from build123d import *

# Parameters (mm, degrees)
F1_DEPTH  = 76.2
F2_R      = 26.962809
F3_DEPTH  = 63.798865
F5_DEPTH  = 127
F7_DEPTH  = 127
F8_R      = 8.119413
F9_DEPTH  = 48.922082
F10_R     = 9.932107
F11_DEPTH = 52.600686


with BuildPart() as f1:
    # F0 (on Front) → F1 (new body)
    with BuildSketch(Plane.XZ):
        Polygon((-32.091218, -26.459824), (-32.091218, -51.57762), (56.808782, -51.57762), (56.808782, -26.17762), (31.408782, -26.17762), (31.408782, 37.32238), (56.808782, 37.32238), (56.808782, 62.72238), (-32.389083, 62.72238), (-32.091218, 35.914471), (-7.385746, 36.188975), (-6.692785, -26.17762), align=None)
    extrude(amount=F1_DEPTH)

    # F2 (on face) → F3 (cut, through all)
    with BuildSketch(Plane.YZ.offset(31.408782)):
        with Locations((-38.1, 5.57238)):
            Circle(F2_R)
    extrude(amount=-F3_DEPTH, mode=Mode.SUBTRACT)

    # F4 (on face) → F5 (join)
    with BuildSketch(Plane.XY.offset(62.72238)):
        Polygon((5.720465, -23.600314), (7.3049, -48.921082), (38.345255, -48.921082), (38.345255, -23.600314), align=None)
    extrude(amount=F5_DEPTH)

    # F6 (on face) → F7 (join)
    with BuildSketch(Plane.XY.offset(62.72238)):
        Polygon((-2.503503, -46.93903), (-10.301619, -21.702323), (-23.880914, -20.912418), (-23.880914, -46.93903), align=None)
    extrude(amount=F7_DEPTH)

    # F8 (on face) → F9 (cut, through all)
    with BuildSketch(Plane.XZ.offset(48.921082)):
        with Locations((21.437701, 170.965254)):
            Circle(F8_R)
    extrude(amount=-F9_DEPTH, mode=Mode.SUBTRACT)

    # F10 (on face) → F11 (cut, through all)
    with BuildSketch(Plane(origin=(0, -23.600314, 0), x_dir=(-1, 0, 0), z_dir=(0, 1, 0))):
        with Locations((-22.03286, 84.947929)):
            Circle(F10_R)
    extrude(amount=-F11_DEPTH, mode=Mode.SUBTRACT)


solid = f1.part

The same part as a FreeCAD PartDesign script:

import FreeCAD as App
import Part
import Sketcher

V = App.Vector
Q = App.Units.Quantity

doc = App.newDocument("Part")
body = doc.addObject("PartDesign::Body", "Body")

# Sketch on XZ plane
sketch1 = doc.addObject("Sketcher::SketchObject", "Sketch")
body.addObject(sketch1)
sketch1.AttachmentSupport = (doc.XZ_Plane, [""])
sketch1.MapMode = "FlatFace"
sketch1.addGeometry([
    Part.LineSegment(V(-32.091218, -26.459824, 0), V(-32.091218, -51.57762, 0)),  # 0
    Part.LineSegment(V(-32.091218, -51.57762, 0), V(56.808782, -51.57762, 0)),  # 1
    Part.LineSegment(V(56.808782, -51.57762, 0), V(56.808782, -26.17762, 0)),  # 2
    Part.LineSegment(V(56.808782, -26.17762, 0), V(31.408782, -26.17762, 0)),  # 3
    Part.LineSegment(V(31.408782, -26.17762, 0), V(31.408782, 37.32238, 0)),  # 4
    Part.LineSegment(V(31.408782, 37.32238, 0), V(56.808782, 37.32238, 0)),  # 5
    Part.LineSegment(V(56.808782, 37.32238, 0), V(56.808782, 62.72238, 0)),  # 6
    Part.LineSegment(V(56.808782, 62.72238, 0), V(-32.389083, 62.72238, 0)),  # 7
    Part.LineSegment(V(-32.389083, 62.72238, 0), V(-32.091218, 35.914471, 0)),  # 8
    Part.LineSegment(V(-32.091218, 35.914471, 0), V(-7.385746, 36.188975, 0)),  # 9
    Part.LineSegment(V(-7.385746, 36.188975, 0), V(-6.692785, -26.17762, 0)),  # 10
    Part.LineSegment(V(-6.692785, -26.17762, 0), V(-32.091218, -26.459824, 0)),  # 11
], False)
sketch1.addConstraint([
    Sketcher.Constraint("Coincident", 0, 2, 1, 1),
    Sketcher.Constraint("Coincident", 1, 2, 2, 1),
    Sketcher.Constraint("Coincident", 2, 2, 3, 1),
    Sketcher.Constraint("Coincident", 3, 2, 4, 1),
    Sketcher.Constraint("Coincident", 4, 2, 5, 1),
    Sketcher.Constraint("Coincident", 5, 2, 6, 1),
    Sketcher.Constraint("Coincident", 6, 2, 7, 1),
    Sketcher.Constraint("Coincident", 7, 2, 8, 1),
    Sketcher.Constraint("Coincident", 8, 2, 9, 1),
    Sketcher.Constraint("Coincident", 9, 2, 10, 1),
    Sketcher.Constraint("Coincident", 10, 2, 11, 1),
    Sketcher.Constraint("Coincident", 11, 2, 0, 1),
    Sketcher.Constraint("Vertical", 0),
    Sketcher.Constraint("Horizontal", 1),
    Sketcher.Constraint("Vertical", 2),
    Sketcher.Constraint("Horizontal", 3),
    Sketcher.Constraint("Vertical", 4),
    Sketcher.Constraint("Horizontal", 5),
    Sketcher.Constraint("Vertical", 6),
    Sketcher.Constraint("Horizontal", 7),
    Sketcher.Constraint("Perpendicular", 8, 9),
    Sketcher.Constraint("Perpendicular", 9, 10),
    Sketcher.Constraint("Perpendicular", 10, 11),
    Sketcher.Constraint("Horizontal", 3, 2, 10, 2),
    Sketcher.Constraint("Vertical", 2, 2, 5, 2),
    Sketcher.Constraint("Vertical", 0, 2, 8, 2),
    Sketcher.Constraint("Equal", 5, 2),
    Sketcher.Constraint("Equal", 2, 6),
    Sketcher.Constraint("DistanceX", 3, 2, 3, 1, Q("1 in")),
    Sketcher.Constraint("Distance", 11, Q("1 in")),
    Sketcher.Constraint("DistanceX", 1, 1, 1, 2, Q("3.5 in")),
    Sketcher.Constraint("DistanceY", 4, 1, 4, 2, Q("2.5 in")),
    Sketcher.Constraint("DistanceY", 11, 2, 9, 2, Q("62.648799 mm")),
    Sketcher.Constraint("DistanceX", 7, 2, 7, 1, Q("89.197865 mm")),
    Sketcher.Constraint("DistanceY", 0, 2, -1, 1, Q("51.57762 mm")),
    Sketcher.Constraint("DistanceX", -1, 1, 3, 2, Q("31.408782 mm")),
])
pad1 = doc.addObject("PartDesign::Pad", "Pad")
body.addObject(pad1)
pad1.Profile = sketch1
pad1.Length = Q("3 in")

# Sketch on YZ plane
sketch2 = doc.addObject("Sketcher::SketchObject", "Sketch001")
body.addObject(sketch2)
sketch2.AttachmentSupport = (doc.YZ_Plane, [""])
sketch2.MapMode = "FlatFace"
sketch2.AttachmentOffset = App.Placement(V(0, 0, 31.408782), App.Rotation())
sketch2.addGeometry(Part.Circle(V(-38.1, 5.57238, 0), V(0, 0, 1), 26.962809), False)
sketch2.addConstraint([
    Sketcher.Constraint("DistanceX", 0, 3, -1, 1, Q("1.5 in")),
    Sketcher.Constraint("Diameter", 0, Q("53.925618 mm")),
    Sketcher.Constraint("DistanceY", -1, 1, 0, 3, Q("5.57238 mm")),
])
pocket1 = doc.addObject("PartDesign::Pocket", "Pocket")
body.addObject(pocket1)
pocket1.Profile = sketch2
pocket1.Type = "ThroughAll"

# Sketch on XY plane
sketch3 = doc.addObject("Sketcher::SketchObject", "Sketch002")
body.addObject(sketch3)
sketch3.AttachmentSupport = (doc.XY_Plane, [""])
sketch3.MapMode = "FlatFace"
sketch3.AttachmentOffset = App.Placement(V(0, 0, 62.72238), App.Rotation())
sketch3.addGeometry([
    Part.LineSegment(V(5.720465, -23.600314, 0), V(7.3049, -48.921082, 0)),
    Part.LineSegment(V(7.3049, -48.921082, 0), V(38.345255, -48.921082, 0)),
    Part.LineSegment(V(38.345255, -48.921082, 0), V(38.345255, -23.600314, 0)),
    Part.LineSegment(V(38.345255, -23.600314, 0), V(5.720465, -23.600314, 0)),
], False)
sketch3.addConstraint([
    Sketcher.Constraint("Coincident", 0, 2, 1, 1),
    Sketcher.Constraint("Coincident", 1, 2, 2, 1),
    Sketcher.Constraint("Coincident", 2, 2, 3, 1),
    Sketcher.Constraint("Coincident", 3, 2, 0, 1),
    Sketcher.Constraint("Horizontal", 1),
    Sketcher.Constraint("Vertical", 2),
    Sketcher.Constraint("Horizontal", 3),
    Sketcher.Constraint("DistanceX", 3, 2, 3, 1, Q("32.62479 mm")),
    Sketcher.Constraint("DistanceX", -1, 1, 0, 2, Q("7.3049 mm")),
    Sketcher.Constraint("DistanceX", 1, 1, 1, 2, Q("31.040355 mm")),
    Sketcher.Constraint("DistanceY", 2, 1, 2, 2, Q("25.320768 mm")),
    Sketcher.Constraint("DistanceY", 0, 2, -1, 1, Q("48.921082 mm")),
])
pad2 = doc.addObject("PartDesign::Pad", "Pad001")
body.addObject(pad2)
pad2.Profile = sketch3
pad2.Length = Q("5 in")

# Sketch on XY plane
sketch4 = doc.addObject("Sketcher::SketchObject", "Sketch003")
body.addObject(sketch4)
sketch4.AttachmentSupport = (doc.XY_Plane, [""])
sketch4.MapMode = "FlatFace"
sketch4.AttachmentOffset = App.Placement(V(0, 0, 62.72238), App.Rotation())
sketch4.addGeometry([
    Part.LineSegment(V(-2.503503, -46.93903, 0), V(-10.301619, -21.702323, 0)),
    Part.LineSegment(V(-10.301619, -21.702323, 0), V(-23.880914, -20.912418, 0)),
    Part.LineSegment(V(-23.880914, -20.912418, 0), V(-23.880914, -46.93903, 0)),
    Part.LineSegment(V(-23.880914, -46.93903, 0), V(-2.503503, -46.93903, 0)),
], False)
sketch4.addConstraint([
    Sketcher.Constraint("Coincident", 0, 2, 1, 1),
    Sketcher.Constraint("Coincident", 1, 2, 2, 1),
    Sketcher.Constraint("Coincident", 2, 2, 3, 1),
    Sketcher.Constraint("Coincident", 3, 2, 0, 1),
    Sketcher.Constraint("Vertical", 2),
    Sketcher.Constraint("Horizontal", 3),
    Sketcher.Constraint("DistanceX", 3, 1, 3, 2, Q("21.377411 mm")),
    Sketcher.Constraint("Distance", 0, Q("26.414049 mm")),
    Sketcher.Constraint("Distance", 1, Q("13.60225 mm")),
    Sketcher.Constraint("DistanceY", 2, 2, 2, 1, Q("26.026612 mm")),
    Sketcher.Constraint("DistanceX", 0, 2, -1, 1, Q("10.301619 mm")),
    Sketcher.Constraint("DistanceY", 2, 2, -1, 1, Q("46.93903 mm")),
])
pad3 = doc.addObject("PartDesign::Pad", "Pad002")
body.addObject(pad3)
pad3.Profile = sketch4
pad3.Length = Q("5 in")

# Sketch on XZ plane
sketch5 = doc.addObject("Sketcher::SketchObject", "Sketch004")
body.addObject(sketch5)
sketch5.AttachmentSupport = (doc.XZ_Plane, [""])
sketch5.MapMode = "FlatFace"
sketch5.AttachmentOffset = App.Placement(V(0, 0, 48.921082), App.Rotation())
sketch5.addGeometry(Part.Circle(V(21.437701, 170.965254, 0), V(0, 0, 1), 8.119413), False)
sketch5.addConstraint([
    Sketcher.Constraint("Diameter", 0, Q("16.238826 mm")),
    Sketcher.Constraint("DistanceX", -1, 1, 0, 3, Q("21.437701 mm")),
    Sketcher.Constraint("DistanceY", -1, 1, 0, 3, Q("170.965254 mm")),
])
pocket2 = doc.addObject("PartDesign::Pocket", "Pocket001")
body.addObject(pocket2)
pocket2.Profile = sketch5
pocket2.Type = "ThroughAll"

# Sketch on XZ plane
sketch6 = doc.addObject("Sketcher::SketchObject", "Sketch005")
body.addObject(sketch6)
sketch6.AttachmentSupport = (doc.XZ_Plane, [""])
sketch6.MapMode = "FlatFace"
sketch6.AttachmentOffset = App.Placement(V(0, 0, 23.600314), App.Rotation())
sketch6.addGeometry(Part.Circle(V(22.03286, 84.947929, 0), V(0, 0, 1), 9.932107), False)
sketch6.addConstraint([
    Sketcher.Constraint("Diameter", 0, Q("19.864214 mm")),
    Sketcher.Constraint("DistanceX", -1, 1, 0, 3, Q("22.03286 mm")),
    Sketcher.Constraint("DistanceY", -1, 1, 0, 3, Q("84.947929 mm")),
])
pocket3 = doc.addObject("PartDesign::Pocket", "Pocket002")
body.addObject(pocket3)
pocket3.Profile = sketch6
pocket3.Type = "ThroughAll"
pocket3.Reversed = True

doc.recompute()
